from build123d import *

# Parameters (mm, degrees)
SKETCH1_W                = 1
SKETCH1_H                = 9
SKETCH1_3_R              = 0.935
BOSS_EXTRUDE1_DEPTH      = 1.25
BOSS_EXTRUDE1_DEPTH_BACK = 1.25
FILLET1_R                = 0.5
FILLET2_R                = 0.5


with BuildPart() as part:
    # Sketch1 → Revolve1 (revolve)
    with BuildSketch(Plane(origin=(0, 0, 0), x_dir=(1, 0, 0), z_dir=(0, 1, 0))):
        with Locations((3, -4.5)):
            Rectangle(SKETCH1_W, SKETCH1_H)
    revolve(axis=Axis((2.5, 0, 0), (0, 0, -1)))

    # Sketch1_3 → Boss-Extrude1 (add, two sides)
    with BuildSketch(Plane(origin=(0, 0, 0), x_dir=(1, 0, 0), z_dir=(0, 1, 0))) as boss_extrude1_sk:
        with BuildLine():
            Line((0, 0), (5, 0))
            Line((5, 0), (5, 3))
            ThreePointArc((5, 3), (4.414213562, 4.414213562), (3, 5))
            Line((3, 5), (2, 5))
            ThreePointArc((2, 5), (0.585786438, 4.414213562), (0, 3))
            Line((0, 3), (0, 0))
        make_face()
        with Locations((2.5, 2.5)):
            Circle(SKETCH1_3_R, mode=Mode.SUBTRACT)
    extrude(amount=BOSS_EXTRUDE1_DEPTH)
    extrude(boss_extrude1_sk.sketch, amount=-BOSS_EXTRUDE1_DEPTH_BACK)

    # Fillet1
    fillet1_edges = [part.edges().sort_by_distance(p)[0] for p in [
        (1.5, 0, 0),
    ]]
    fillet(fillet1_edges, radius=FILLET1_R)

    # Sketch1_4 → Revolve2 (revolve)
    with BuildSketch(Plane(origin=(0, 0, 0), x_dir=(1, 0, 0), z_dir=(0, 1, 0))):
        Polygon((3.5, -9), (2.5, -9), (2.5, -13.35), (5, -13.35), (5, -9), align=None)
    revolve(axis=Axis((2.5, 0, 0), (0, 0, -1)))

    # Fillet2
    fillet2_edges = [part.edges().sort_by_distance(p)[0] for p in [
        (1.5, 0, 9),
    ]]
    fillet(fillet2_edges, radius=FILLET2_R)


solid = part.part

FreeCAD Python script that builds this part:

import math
import FreeCAD as App
import Part
import Sketcher

V = App.Vector


def edges_at(feature, points):
    """Names of the edges that pass closest to the given points."""
    edges = feature.Shape.Edges
    near = lambda p: min(range(len(edges)), key=lambda i: edges[i].distToShape(Part.Vertex(*p))[0])
    return sorted({f"Edge{near(p) + 1}" for p in points})


def add_polygon(sketch, points):
    """Adds a closed chain of lines whose ends are joined by coincident constraints."""
    first, n = sketch.GeometryCount, len(points)
    for a, b in zip(points, points[1:] + points[:1]):
        sketch.addGeometry(Part.LineSegment(App.Vector(*a, 0), App.Vector(*b, 0)), False)
    for i in range(n):
        sketch.addConstraint(Sketcher.Constraint("Coincident", first + i, 2, first + (i + 1) % n, 1))

doc = App.newDocument("Part")
body = doc.addObject("PartDesign::Body", "Body")

sketch1 = body.newObject("Sketcher::SketchObject", "Sketch")
sketch1.AttachmentSupport = (doc.getObject("XZ_Plane"), [""])
sketch1.MapMode = "FlatFace"
add_polygon(sketch1, [(2.5, 0), (2.5, 9), (3.5, 9), (3.5, 0)])
sketch1.addGeometry(Part.LineSegment(V(2.5, 9, 0), V(2.5, 0, 0)), True)
sketch1.addConstraint([
    Sketcher.Constraint("Vertical", 0),
    Sketcher.Constraint("Horizontal", 1),
    Sketcher.Constraint("Vertical", 2),
    Sketcher.Constraint("Horizontal", 3),
    Sketcher.Constraint("Vertical", 4),
    Sketcher.Constraint("Coincident", 4, 1, 0, 2),
    Sketcher.Constraint("PointOnObject", 2, 2, -1),
    Sketcher.Constraint("PointOnObject", 4, 2, -1),
    Sketcher.Constraint("DistanceX", 1, 1, 1, 2, 1.0),
    Sketcher.Constraint("DistanceY", 0, 1, 0, 2, 9.0),
    Sketcher.Constraint("DistanceX", -1, 1, 0, 2, 2.5),
])
revolution = body.newObject("PartDesign::Revolution", "Revolution")
revolution.Profile = sketch1
revolution.ReferenceAxis = (sketch1, ["Axis0"])
revolution.Angle = 360

sketch2 = body.newObject("Sketcher::SketchObject", "Sketch001")
sketch2.AttachmentSupport = (doc.getObject("XZ_Plane"), [""])
sketch2.MapMode = "FlatFace"
sketch2.addGeometry([
    Part.LineSegment(V(0, 0, 0), V(5, 0, 0)),
    Part.LineSegment(V(5, 0, 0), V(5, -3, 0)),
    Part.ArcOfCircle(Part.Circle(V(3, -3, 0), V(0, 0, 1), 2), math.radians(-90), math.radians(0)),
    Part.LineSegment(V(3, -5, 0), V(2, -5, 0)),
    Part.ArcOfCircle(Part.Circle(V(2, -3, 0), V(0, 0, 1), 2), math.radians(-180), math.radians(-90)),
    Part.LineSegment(V(0, -3, 0), V(0, 0, 0)),
    Part.Circle(V(2.5, -2.5, 0), V(0, 0, 1), 0.9),
], False)
sketch2.addConstraint([
    Sketcher.Constraint("Coincident", 0, 2, 1, 1),
    Sketcher.Constraint("Tangent", 1, 2, 2, 2),
    Sketcher.Constraint("Tangent", 2, 1, 3, 1),
    Sketcher.Constraint("Tangent", 3, 2, 4, 2),
    Sketcher.Constraint("Tangent", 4, 1, 5, 1),
    Sketcher.Constraint("Coincident", 5, 2, 0, 1),
    Sketcher.Constraint("Horizontal", 0),
    Sketcher.Constraint("Vertical", 1),
    Sketcher.Constraint("Horizontal", 3),
    Sketcher.Constraint("Vertical", 5),
    Sketcher.Constraint("Coincident", 5, 2, -1, 1),
    Sketcher.Constraint("Equal", 2, 4),
    Sketcher.Constraint("Radius", 2, 2.0),
    Sketcher.Constraint("Diameter", 6, 1.87),
    Sketcher.Constraint("DistanceX", 0, 1, 0, 2, 5.0),
    Sketcher.Constraint("DistanceY", 1, 2, 1, 1, 3.0),
    Sketcher.Constraint("DistanceX", -1, 1, 6, 3, 2.5),
    Sketcher.Constraint("DistanceY", 6, 3, -1, 1, 2.5),
])
pad1 = body.newObject("PartDesign::Pad", "Pad")
pad1.Profile = sketch2
pad1.Type = "TwoLengths"
pad1.Length = 1.25
pad1.Length2 = 1.25
pad1.Reversed = True
doc.recompute()

fillet = body.newObject("PartDesign::Fillet", "Fillet")
fillet.Base = (pad1, edges_at(pad1, [(1.5, 0, 0)]))
fillet.Radius = 0.5

sketch3 = body.newObject("Sketcher::SketchObject", "Sketch002")
sketch3.AttachmentSupport = (doc.getObject("XZ_Plane"), [""])
sketch3.MapMode = "FlatFace"
add_polygon(sketch3, [(2.5, 9), (2.5, 13.3), (5, 13.3), (5, 9)])
sketch3.addGeometry(Part.LineSegment(V(2.5, 13.3, 0), V(2.5, 9, 0)), True)
sketch3.addConstraint([
    Sketcher.Constraint("Vertical", 0),
    Sketcher.Constraint("Horizontal", 1),
    Sketcher.Constraint("Vertical", 2),
    Sketcher.Constraint("Horizontal", 3),
    Sketcher.Constraint("Vertical", 4),
    Sketcher.Constraint("Coincident", 4, 1, 0, 2),
    Sketcher.Constraint("Horizontal", 2, 2, 4, 2),
    Sketcher.Constraint("DistanceX", 1, 1, 1, 2, 2.5),
    Sketcher.Constraint("DistanceX", -1, 1, 1, 2, 5.0),
    Sketcher.Constraint("DistanceY", -1, 1, 2, 2, 9.0),
    Sketcher.Constraint("DistanceY", 0, 1, 0, 2, 4.35),
])
revolution2 = body.newObject("PartDesign::Revolution", "Revolution001")
revolution2.Profile = sketch3
revolution2.ReferenceAxis = (sketch3, ["Axis0"])
revolution2.Angle = 360
doc.recompute()

fillet2 = body.newObject("PartDesign::Fillet", "Fillet001")
fillet2.Base = (revolution2, edges_at(revolution2, [(1.5, 0, 9)]))
fillet2.Radius = 0.5

doc.recompute()
